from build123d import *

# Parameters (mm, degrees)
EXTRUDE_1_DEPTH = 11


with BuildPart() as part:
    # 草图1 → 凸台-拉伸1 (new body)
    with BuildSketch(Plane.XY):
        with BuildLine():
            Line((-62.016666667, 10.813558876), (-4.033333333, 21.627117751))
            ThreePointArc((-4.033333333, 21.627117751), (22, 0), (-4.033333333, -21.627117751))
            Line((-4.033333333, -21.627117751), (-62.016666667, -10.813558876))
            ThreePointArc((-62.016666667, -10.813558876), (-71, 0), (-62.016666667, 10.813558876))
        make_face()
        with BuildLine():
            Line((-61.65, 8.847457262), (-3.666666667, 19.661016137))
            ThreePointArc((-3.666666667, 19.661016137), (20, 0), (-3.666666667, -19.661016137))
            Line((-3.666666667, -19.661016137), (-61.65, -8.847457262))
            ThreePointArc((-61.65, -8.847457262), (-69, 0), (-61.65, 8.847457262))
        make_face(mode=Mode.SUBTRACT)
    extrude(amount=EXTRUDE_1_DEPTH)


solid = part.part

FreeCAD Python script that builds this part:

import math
import FreeCAD as App
import Part
import Sketcher
Q = App.Units.Quantity

doc = App.newDocument("Part")
body = doc.addObject("PartDesign::Body", "Body")

# Sketch on XY plane
sketch1 = doc.addObject("Sketcher::SketchObject", "Sketch")
body.addObject(sketch1)
sketch1.AttachmentSupport = (doc.XY_Plane, [""])
sketch1.MapMode = "FlatFace"
sketch1.addGeometry(Part.LineSegment(App.Vector(-4.033333, 21.627118, 0), App.Vector(-62.016667, 10.813559, 0)), False)
sketch1.addGeometry(Part.ArcOfCircle(Part.Circle(App.Vector(-60, 0, 0), App.Vector(0, 0, 1), 11), math.radians(100.563978), math.radians(259.436022)), False)
sketch1.addGeometry(Part.LineSegment(App.Vector(-62.016667, -10.813559, 0), App.Vector(-4.033333, -21.627118, 0)), False)
sketch1.addGeometry(Part.ArcOfCircle(Part.Circle(App.Vector(0, 0, 0), App.Vector(0, 0, 1), 22), math.radians(-100.563978), math.radians(100.563978)), False)
sketch1.addGeometry(Part.LineSegment(App.Vector(-61.65, 8.847457, 0), App.Vector(-3.666667, 19.661016, 0)), False)
sketch1.addGeometry(Part.ArcOfCircle(Part.Circle(App.Vector(0, 0, 0), App.Vector(0, 0, 1), 20), math.radians(-100.563978), math.radians(100.563978)), False)
sketch1.addGeometry(Part.LineSegment(App.Vector(-3.666667, -19.661016, 0), App.Vector(-61.65, -8.847457, 0)), False)
sketch1.addGeometry(Part.ArcOfCircle(Part.Circle(App.Vector(-60, 0, 0), App.Vector(0, 0, 1), 9), math.radians(100.563978), math.radians(259.436022)), False)
sketch1.addConstraint(Sketcher.Constraint("Tangent", 0, 2, 1, 1))
sketch1.addConstraint(Sketcher.Constraint("Tangent", 1, 2, 2, 1))
sketch1.addConstraint(Sketcher.Constraint("Tangent", 2, 2, 3, 1))
sketch1.addConstraint(Sketcher.Constraint("Tangent", 3, 2, 0, 1))
sketch1.addConstraint(Sketcher.Constraint("Tangent", 4, 2, 5, 2))
sketch1.addConstraint(Sketcher.Constraint("Tangent", 5, 1, 6, 1))
sketch1.addConstraint(Sketcher.Constraint("Tangent", 6, 2, 7, 2))
sketch1.addConstraint(Sketcher.Constraint("Tangent", 7, 1, 4, 1))
sketch1.addConstraint(Sketcher.Constraint("Coincident", 3, 3, -1, 1))
sketch1.addConstraint(Sketcher.Constraint("Coincident", 5, 3, -1, 1))
sketch1.addConstraint(Sketcher.Constraint("Coincident", 7, 3, 1, 3))
sketch1.addConstraint(Sketcher.Constraint("PointOnObject", 1, 3, -1))
sketch1.addConstraint(Sketcher.Constraint("Parallel", 0, 4))
sketch1.addConstraint(Sketcher.Constraint("Radius", 1, Q("11 mm")))
sketch1.addConstraint(Sketcher.Constraint("Radius", 3, Q("22 mm")))
sketch1.addConstraint(Sketcher.Constraint("Radius", 5, Q("20 mm")))
sketch1.addConstraint(Sketcher.Constraint("DistanceX", 1, 3, -1, 1, Q("60 mm")))
pad1 = doc.addObject("PartDesign::Pad", "Pad")
body.addObject(pad1)
pad1.Profile = sketch1
pad1.Length = 11

doc.recompute()
